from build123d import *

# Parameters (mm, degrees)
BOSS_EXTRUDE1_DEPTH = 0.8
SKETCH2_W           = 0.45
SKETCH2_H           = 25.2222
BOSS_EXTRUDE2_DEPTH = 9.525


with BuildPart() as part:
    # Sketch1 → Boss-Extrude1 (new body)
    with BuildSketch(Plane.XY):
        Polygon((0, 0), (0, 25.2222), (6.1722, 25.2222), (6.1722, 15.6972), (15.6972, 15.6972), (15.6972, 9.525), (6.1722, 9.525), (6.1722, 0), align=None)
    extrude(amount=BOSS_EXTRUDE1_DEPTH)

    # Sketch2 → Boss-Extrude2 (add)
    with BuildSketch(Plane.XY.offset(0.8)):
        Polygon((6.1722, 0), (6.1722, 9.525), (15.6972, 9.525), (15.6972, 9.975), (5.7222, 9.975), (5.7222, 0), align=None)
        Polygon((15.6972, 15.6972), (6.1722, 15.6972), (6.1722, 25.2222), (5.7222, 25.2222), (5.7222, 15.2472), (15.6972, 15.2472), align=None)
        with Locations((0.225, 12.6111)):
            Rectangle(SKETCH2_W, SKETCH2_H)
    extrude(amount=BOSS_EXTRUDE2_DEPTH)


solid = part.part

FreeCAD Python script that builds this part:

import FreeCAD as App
import Part
import Sketcher

V = App.Vector
Q = App.Units.Quantity

doc = App.newDocument("Part")
body = doc.addObject("PartDesign::Body", "Body")

# Sketch on XY plane
sketch1 = doc.addObject("Sketcher::SketchObject", "Sketch")
body.addObject(sketch1)
sketch1.AttachmentSupport = (doc.XY_Plane, [""])
sketch1.MapMode = "FlatFace"
sketch1.addGeometry([
    Part.LineSegment(V(0, 25, 0), V(0, 0, 0)),  # 0
    Part.LineSegment(V(0, 0, 0), V(6, 0, 0)),  # 1
    Part.LineSegment(V(6, 0, 0), V(6, 10, 0)),  # 2
    Part.LineSegment(V(6, 10, 0), V(16, 10, 0)),  # 3
    Part.LineSegment(V(16, 10, 0), V(16, 16, 0)),  # 4
    Part.LineSegment(V(16, 16, 0), V(6, 16, 0)),  # 5
    Part.LineSegment(V(6, 16, 0), V(6, 25, 0)),  # 6
    Part.LineSegment(V(6, 25, 0), V(0, 25, 0)),  # 7
], False)
sketch1.addConstraint([
    Sketcher.Constraint("Coincident", 0, 2, 1, 1),
    Sketcher.Constraint("Coincident", 1, 2, 2, 1),
    Sketcher.Constraint("Coincident", 2, 2, 3, 1),
    Sketcher.Constraint("Coincident", 3, 2, 4, 1),
    Sketcher.Constraint("Coincident", 4, 2, 5, 1),
    Sketcher.Constraint("Coincident", 5, 2, 6, 1),
    Sketcher.Constraint("Coincident", 6, 2, 7, 1),
    Sketcher.Constraint("Coincident", 7, 2, 0, 1),
    Sketcher.Constraint("Vertical", 0),
    Sketcher.Constraint("Horizontal", 1),
    Sketcher.Constraint("Vertical", 2),
    Sketcher.Constraint("Horizontal", 3),
    Sketcher.Constraint("Vertical", 4),
    Sketcher.Constraint("Horizontal", 5),
    Sketcher.Constraint("Vertical", 6),
    Sketcher.Constraint("Horizontal", 7),
    Sketcher.Constraint("Coincident", 0, 2, -1, 1),
    Sketcher.Constraint("Vertical", 2, 2, 5, 2),
    Sketcher.Constraint("Equal", 5, 2),
    Sketcher.Constraint("Equal", 7, 4),
    Sketcher.Constraint("Equal", 2, 6),
    Sketcher.Constraint("DistanceX", 1, 1, 1, 2, Q("0.243 in")),
    Sketcher.Constraint("DistanceX", 3, 1, 3, 2, Q("0.375 in")),
])
pad1 = doc.addObject("PartDesign::Pad", "Pad")
body.addObject(pad1)
pad1.Profile = sketch1
pad1.Length = 0.8

# Sketch on XY plane
sketch2 = doc.addObject("Sketcher::SketchObject", "Sketch001")
body.addObject(sketch2)
sketch2.AttachmentSupport = (doc.XY_Plane, [""])
sketch2.MapMode = "FlatFace"
sketch2.AttachmentOffset = App.Placement(V(0, 0, 0.8), App.Rotation())
sketch2.addGeometry([
    Part.LineSegment(V(6.17, 0, 0), V(6.17, 9.53, 0)),  # 0
    Part.LineSegment(V(6.17, 9.53, 0), V(15.7, 9.53, 0)),  # 1
    Part.LineSegment(V(15.7, 9.53, 0), V(15.7, 9.97, 0)),  # 2
    Part.LineSegment(V(15.7, 9.97, 0), V(5.72, 9.97, 0)),  # 3
    Part.LineSegment(V(5.72, 9.97, 0), V(5.72, 0, 0)),  # 4
    Part.LineSegment(V(5.72, 0, 0), V(6.17, 0, 0)),  # 5
    Part.LineSegment(V(15.7, 15.7, 0), V(6.17, 15.7, 0)),  # 6
    Part.LineSegment(V(6.17, 15.7, 0), V(6.17, 25.22, 0)),  # 7
    Part.LineSegment(V(6.17, 25.22, 0), V(5.72, 25.22, 0)),  # 8
    Part.LineSegment(V(5.72, 25.22, 0), V(5.72, 15.25, 0)),  # 9
    Part.LineSegment(V(5.72, 15.25, 0), V(15.7, 15.25, 0)),  # 10
    Part.LineSegment(V(15.7, 15.25, 0), V(15.7, 15.7, 0)),  # 11
    Part.LineSegment(V(0, 25.22, 0), V(0, 0, 0)),  # 12
    Part.LineSegment(V(0, 0, 0), V(0.45, 0, 0)),  # 13
    Part.LineSegment(V(0.45, 0, 0), V(0.45, 25.22, 0)),  # 14
    Part.LineSegment(V(0.45, 25.22, 0), V(0, 25.22, 0)),  # 15
], False)
sketch2.addConstraint([
    Sketcher.Constraint("Coincident", 0, 2, 1, 1),
    Sketcher.Constraint("Coincident", 1, 2, 2, 1),
    Sketcher.Constraint("Coincident", 2, 2, 3, 1),
    Sketcher.Constraint("Coincident", 3, 2, 4, 1),
    Sketcher.Constraint("Coincident", 4, 2, 5, 1),
    Sketcher.Constraint("Coincident", 5, 2, 0, 1),
    Sketcher.Constraint("Coincident", 6, 2, 7, 1),
    Sketcher.Constraint("Coincident", 7, 2, 8, 1),
    Sketcher.Constraint("Coincident", 8, 2, 9, 1),
    Sketcher.Constraint("Coincident", 9, 2, 10, 1),
    Sketcher.Constraint("Coincident", 10, 2, 11, 1),
    Sketcher.Constraint("Coincident", 11, 2, 6, 1),
    Sketcher.Constraint("Coincident", 12, 2, 13, 1),
    Sketcher.Constraint("Coincident", 13, 2, 14, 1),
    Sketcher.Constraint("Coincident", 14, 2, 15, 1),
    Sketcher.Constraint("Coincident", 15, 2, 12, 1),
    Sketcher.Constraint("Vertical", 0),
    Sketcher.Constraint("Horizontal", 1),
    Sketcher.Constraint("Vertical", 2),
    Sketcher.Constraint("Horizontal", 3),
    Sketcher.Constraint("Vertical", 4),
    Sketcher.Constraint("Horizontal", 5),
    Sketcher.Constraint("Horizontal", 6),
    Sketcher.Constraint("Vertical", 7),
    Sketcher.Constraint("Horizontal", 8),
    Sketcher.Constraint("Vertical", 9),
    Sketcher.Constraint("Horizontal", 10),
    Sketcher.Constraint("Vertical", 11),
    Sketcher.Constraint("Vertical", 12),
    Sketcher.Constraint("Horizontal", 13),
    Sketcher.Constraint("Vertical", 14),
    Sketcher.Constraint("Horizontal", 15),
    Sketcher.Constraint("Coincident", 12, 2, -1, 1),
    Sketcher.Constraint("PointOnObject", 4, 2, -1),
    Sketcher.Constraint("Horizontal", 8, 2, 14, 2),
    Sketcher.Constraint("Vertical", 5, 2, 6, 2),
    Sketcher.Constraint("Vertical", 4, 2, 8, 2),
    Sketcher.Constraint("Vertical", 2, 2, 10, 2),
    Sketcher.Constraint("Equal", 8, 13),
    Sketcher.Constraint("Equal", 6, 0),
    Sketcher.Constraint("Equal", 15, 2),
    Sketcher.Constraint("Equal", 0, 7),
    Sketcher.Constraint("Equal", 4, 9),
    Sketcher.Constraint("DistanceX", 1, 1, 1, 2, Q("0.375 in")),
    Sketcher.Constraint("DistanceY", 12, 2, 12, 1, Q("0.993 in")),
    Sketcher.Constraint("DistanceX", -1, 1, 0, 2, Q("0.243 in")),
    Sketcher.Constraint("DistanceX", 3, 2, 3, 1, 9.975),
])
pad2 = doc.addObject("PartDesign::Pad", "Pad001")
body.addObject(pad2)
pad2.Profile = sketch2
pad2.Length = Q("0.375 in")

doc.recompute()
